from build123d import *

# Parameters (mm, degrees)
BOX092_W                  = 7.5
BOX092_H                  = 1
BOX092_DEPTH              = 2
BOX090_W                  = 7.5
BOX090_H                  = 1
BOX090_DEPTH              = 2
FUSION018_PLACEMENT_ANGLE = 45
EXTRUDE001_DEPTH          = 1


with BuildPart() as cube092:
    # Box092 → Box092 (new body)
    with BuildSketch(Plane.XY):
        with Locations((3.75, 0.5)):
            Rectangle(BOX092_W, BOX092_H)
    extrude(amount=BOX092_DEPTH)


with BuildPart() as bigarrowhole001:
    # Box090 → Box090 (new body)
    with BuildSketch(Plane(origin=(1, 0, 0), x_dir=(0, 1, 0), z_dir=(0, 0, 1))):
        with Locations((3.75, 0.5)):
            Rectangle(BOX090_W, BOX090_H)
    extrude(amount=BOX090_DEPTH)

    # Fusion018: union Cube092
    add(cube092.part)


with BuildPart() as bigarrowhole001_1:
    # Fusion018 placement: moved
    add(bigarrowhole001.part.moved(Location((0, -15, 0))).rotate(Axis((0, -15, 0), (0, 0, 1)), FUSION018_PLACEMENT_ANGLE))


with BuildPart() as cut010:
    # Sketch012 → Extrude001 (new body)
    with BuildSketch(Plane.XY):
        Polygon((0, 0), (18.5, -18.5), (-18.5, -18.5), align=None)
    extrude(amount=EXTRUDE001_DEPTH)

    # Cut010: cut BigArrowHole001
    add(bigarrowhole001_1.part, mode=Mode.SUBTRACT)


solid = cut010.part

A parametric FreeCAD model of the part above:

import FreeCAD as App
import Part
import Sketcher

V = App.Vector
Q = App.Units.Quantity


def add_polygon(sketch, points):
    """Adds a closed chain of lines whose ends are joined by coincident constraints."""
    first, n = sketch.GeometryCount, len(points)
    for a, b in zip(points, points[1:] + points[:1]):
        sketch.addGeometry(Part.LineSegment(App.Vector(*a, 0), App.Vector(*b, 0)), False)
    for i in range(n):
        sketch.addConstraint(Sketcher.Constraint("Coincident", first + i, 2, first + (i + 1) % n, 1))

doc = App.newDocument("Part")
body = doc.addObject("PartDesign::Body", "Body")

sketch1 = body.newObject("Sketcher::SketchObject", "Sketch")
sketch1.AttachmentSupport = (doc.getObject("XY_Plane"), [""])
sketch1.MapMode = "FlatFace"
add_polygon(sketch1, [(0, 1), (0, 0), (7.5, 0), (7.5, 1)])
sketch1.addConstraint([
    Sketcher.Constraint("Vertical", 0),
    Sketcher.Constraint("Horizontal", 1),
    Sketcher.Constraint("Vertical", 2),
    Sketcher.Constraint("Horizontal", 3),
    Sketcher.Constraint("Coincident", 0, 2, -1, 1),
    Sketcher.Constraint("DistanceY", 0, 2, 0, 1, Q("1 mm")),
    Sketcher.Constraint("DistanceX", 1, 1, 1, 2, Q("7.5 mm")),
])
pad1 = body.newObject("PartDesign::Pad", "Pad")
pad1.Profile = sketch1
pad1.Length = 2
body2 = doc.addObject("PartDesign::Body", "Body001")

sketch2 = body2.newObject("Sketcher::SketchObject", "Sketch001")
sketch2.AttachmentSupport = (doc.getObject("XY_Plane001"), [""])
sketch2.MapMode = "FlatFace"
add_polygon(sketch2, [(0, 0), (1, 0), (1, 7.5), (0, 7.5)])
sketch2.addConstraint([
    Sketcher.Constraint("Horizontal", 0),
    Sketcher.Constraint("Vertical", 1),
    Sketcher.Constraint("Horizontal", 2),
    Sketcher.Constraint("Vertical", 3),
    Sketcher.Constraint("Coincident", 3, 2, -1, 1),
    Sketcher.Constraint("DistanceX", 0, 1, 0, 2, Q("1 mm")),
    Sketcher.Constraint("DistanceY", 1, 1, 1, 2, Q("7.5 mm")),
])
pad2 = body2.newObject("PartDesign::Pad", "Pad001")
pad2.Profile = sketch2
pad2.Length = 2
doc.recompute()

boolean = body2.newObject("PartDesign::Boolean", "Boolean")
boolean.Type = "Fuse"
boolean.addObjects([body])
body3 = doc.addObject("PartDesign::Body", "Body002")
doc.recompute()

body2.Placement = App.Placement(V(0, -15, 0), App.Rotation(V(0, 0, 1), 45))
boolean2 = body3.newObject("PartDesign::Boolean", "Boolean001")
boolean2.Type = "Fuse"
boolean2.addObjects([body2])
body4 = doc.addObject("PartDesign::Body", "Body003")

sketch3 = body4.newObject("Sketcher::SketchObject", "Sketch002")
sketch3.AttachmentSupport = (doc.getObject("XY_Plane003"), [""])
sketch3.MapMode = "FlatFace"
add_polygon(sketch3, [(18, -18), (0, 0), (-18, -18)])
sketch3.addConstraint([
    Sketcher.Constraint("Horizontal", 2),
    Sketcher.Constraint("Coincident", 0, 2, -1, 1),
    Sketcher.Constraint("Perpendicular", 0, 1),
    Sketcher.Constraint("Equal", 0, 1),
    Sketcher.Constraint("DistanceX", 2, 1, 2, 2, Q("37 mm")),
])
pad3 = body4.newObject("PartDesign::Pad", "Pad002")
pad3.Profile = sketch3
pad3.Length = 1
doc.recompute()

boolean3 = body4.newObject("PartDesign::Boolean", "Boolean002")
boolean3.Type = "Cut"
boolean3.addObjects([body3])

doc.recompute()
